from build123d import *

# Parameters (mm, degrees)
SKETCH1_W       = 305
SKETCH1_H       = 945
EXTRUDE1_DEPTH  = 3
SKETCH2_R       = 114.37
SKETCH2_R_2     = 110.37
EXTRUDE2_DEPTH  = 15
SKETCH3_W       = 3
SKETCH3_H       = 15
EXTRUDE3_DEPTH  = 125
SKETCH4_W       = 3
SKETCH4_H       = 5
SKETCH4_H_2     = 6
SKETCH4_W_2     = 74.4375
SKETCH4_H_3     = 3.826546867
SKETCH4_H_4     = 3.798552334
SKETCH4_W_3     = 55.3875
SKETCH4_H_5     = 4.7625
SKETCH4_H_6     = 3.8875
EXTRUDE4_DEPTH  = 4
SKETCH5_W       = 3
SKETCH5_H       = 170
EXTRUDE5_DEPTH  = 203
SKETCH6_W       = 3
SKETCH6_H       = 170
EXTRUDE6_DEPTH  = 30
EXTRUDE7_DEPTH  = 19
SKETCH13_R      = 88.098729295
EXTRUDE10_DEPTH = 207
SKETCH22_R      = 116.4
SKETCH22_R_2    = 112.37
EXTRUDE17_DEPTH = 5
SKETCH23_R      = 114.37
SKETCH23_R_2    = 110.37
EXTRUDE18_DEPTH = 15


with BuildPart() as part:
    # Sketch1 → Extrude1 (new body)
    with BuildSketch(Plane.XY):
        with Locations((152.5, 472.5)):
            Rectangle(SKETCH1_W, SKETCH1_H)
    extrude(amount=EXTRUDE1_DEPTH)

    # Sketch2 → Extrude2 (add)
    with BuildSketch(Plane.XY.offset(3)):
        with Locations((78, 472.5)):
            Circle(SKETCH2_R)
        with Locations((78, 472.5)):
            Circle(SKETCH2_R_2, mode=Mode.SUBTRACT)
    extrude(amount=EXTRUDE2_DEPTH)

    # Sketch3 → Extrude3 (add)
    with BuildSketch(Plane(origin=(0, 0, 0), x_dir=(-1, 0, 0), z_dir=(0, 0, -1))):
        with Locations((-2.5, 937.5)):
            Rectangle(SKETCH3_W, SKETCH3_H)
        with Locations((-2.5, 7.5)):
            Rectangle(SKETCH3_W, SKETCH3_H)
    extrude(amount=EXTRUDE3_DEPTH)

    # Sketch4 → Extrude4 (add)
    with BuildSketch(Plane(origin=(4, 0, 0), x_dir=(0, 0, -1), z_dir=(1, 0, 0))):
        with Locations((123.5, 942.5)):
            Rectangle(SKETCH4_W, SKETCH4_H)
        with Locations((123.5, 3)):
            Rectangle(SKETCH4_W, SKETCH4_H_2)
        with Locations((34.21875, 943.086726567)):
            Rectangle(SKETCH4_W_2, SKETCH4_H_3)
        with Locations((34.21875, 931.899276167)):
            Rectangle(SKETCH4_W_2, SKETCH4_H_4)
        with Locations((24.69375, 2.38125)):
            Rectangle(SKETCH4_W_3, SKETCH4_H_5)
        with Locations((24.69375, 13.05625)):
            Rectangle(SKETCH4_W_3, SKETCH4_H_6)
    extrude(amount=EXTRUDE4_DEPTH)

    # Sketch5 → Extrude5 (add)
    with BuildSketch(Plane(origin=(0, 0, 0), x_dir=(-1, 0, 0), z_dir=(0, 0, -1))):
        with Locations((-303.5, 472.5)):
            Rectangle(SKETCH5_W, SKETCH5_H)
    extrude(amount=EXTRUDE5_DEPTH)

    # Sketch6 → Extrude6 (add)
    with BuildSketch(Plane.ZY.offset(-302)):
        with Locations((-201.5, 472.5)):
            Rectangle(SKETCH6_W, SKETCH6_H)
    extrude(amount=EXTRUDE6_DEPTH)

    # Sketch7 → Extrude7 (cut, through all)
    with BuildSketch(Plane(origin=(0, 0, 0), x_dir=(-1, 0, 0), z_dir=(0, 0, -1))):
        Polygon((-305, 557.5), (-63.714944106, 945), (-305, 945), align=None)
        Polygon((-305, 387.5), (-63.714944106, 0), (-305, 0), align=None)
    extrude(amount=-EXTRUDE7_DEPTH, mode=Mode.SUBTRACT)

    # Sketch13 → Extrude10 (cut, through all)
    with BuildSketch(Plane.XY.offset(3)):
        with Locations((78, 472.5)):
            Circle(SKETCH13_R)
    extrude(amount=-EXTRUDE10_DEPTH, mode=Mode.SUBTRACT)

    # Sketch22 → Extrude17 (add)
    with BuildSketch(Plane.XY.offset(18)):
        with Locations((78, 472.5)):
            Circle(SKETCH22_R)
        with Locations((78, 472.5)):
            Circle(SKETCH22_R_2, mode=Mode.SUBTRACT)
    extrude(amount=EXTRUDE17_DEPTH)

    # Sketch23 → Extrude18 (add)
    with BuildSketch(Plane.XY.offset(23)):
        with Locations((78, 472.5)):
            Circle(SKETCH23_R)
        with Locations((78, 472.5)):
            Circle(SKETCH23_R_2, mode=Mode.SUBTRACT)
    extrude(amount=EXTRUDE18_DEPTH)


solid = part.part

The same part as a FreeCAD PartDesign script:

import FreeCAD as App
import Part
import Sketcher

doc = App.newDocument("Part")
body = doc.addObject("PartDesign::Body", "Body")

sketch1 = doc.addObject("Sketcher::SketchObject", "Sketch")
body.addObject(sketch1)
sketch1.AttachmentSupport = (doc.XY_Plane, [""])
sketch1.MapMode = "FlatFace"
sketch1.addGeometry([
    Part.LineSegment(App.Vector(0, 945, 0), App.Vector(0, 0, 0)),
    Part.LineSegment(App.Vector(0, 0, 0), App.Vector(305, 0, 0)),
    Part.LineSegment(App.Vector(305, 0, 0), App.Vector(305, 945, 0)),
    Part.LineSegment(App.Vector(305, 945, 0), App.Vector(0, 945, 0)),
], False)
sketch1.addConstraint([
    Sketcher.Constraint("Coincident", 0, 2, 1, 1),
    Sketcher.Constraint("Coincident", 1, 2, 2, 1),
    Sketcher.Constraint("Coincident", 2, 2, 3, 1),
    Sketcher.Constraint("Coincident", 3, 2, 0, 1),
    Sketcher.Constraint("Vertical", 0),
    Sketcher.Constraint("Horizontal", 1),
    Sketcher.Constraint("Vertical", 2),
    Sketcher.Constraint("Horizontal", 3),
    Sketcher.Constraint("Coincident", 0, 2, -1, 1),
    Sketcher.Constraint("DistanceX", 1, 1, 1, 2, 305.0),
    Sketcher.Constraint("DistanceY", 0, 2, 0, 1, 945.0),
])
pad1 = doc.addObject("PartDesign::Pad", "Pad")
body.addObject(pad1)
pad1.Profile = sketch1
pad1.Length = 3

sketch2 = doc.addObject("Sketcher::SketchObject", "Sketch001")
body.addObject(sketch2)
sketch2.AttachmentSupport = (doc.XY_Plane, [""])
sketch2.MapMode = "FlatFace"
sketch2.AttachmentOffset = App.Placement(App.Vector(0, 0, 3), App.Rotation())
sketch2.addGeometry([
    Part.Circle(App.Vector(78, 472, 0), App.Vector(0, 0, 1), 114),
    Part.Circle(App.Vector(78, 472, 0), App.Vector(0, 0, 1), 110),
], False)
sketch2.addConstraint([
    Sketcher.Constraint("Coincident", 1, 3, 0, 3),
    Sketcher.Constraint("Diameter", 0, 228.74),
    Sketcher.Constraint("Diameter", 1, 220.74),
    Sketcher.Constraint("DistanceX", -1, 1, 0, 3, 78.0),
    Sketcher.Constraint("DistanceY", -1, 1, 0, 3, 472.5),
])
pad2 = doc.addObject("PartDesign::Pad", "Pad001")
body.addObject(pad2)
pad2.Profile = sketch2
pad2.Length = 15

sketch3 = doc.addObject("Sketcher::SketchObject", "Sketch002")
body.addObject(sketch3)
sketch3.AttachmentSupport = (doc.XY_Plane, [""])
sketch3.MapMode = "FlatFace"
sketch3.addGeometry([
    Part.LineSegment(App.Vector(4, 945, 0), App.Vector(4, 930, 0)),
    Part.LineSegment(App.Vector(4, 930, 0), App.Vector(1, 930, 0)),
    Part.LineSegment(App.Vector(1, 930, 0), App.Vector(1, 945, 0)),
    Part.LineSegment(App.Vector(1, 945, 0), App.Vector(4, 945, 0)),
    Part.LineSegment(App.Vector(4, 15, 0), App.Vector(4, 0, 0)),
    Part.LineSegment(App.Vector(4, 0, 0), App.Vector(1, 0, 0)),
    Part.LineSegment(App.Vector(1, 0, 0), App.Vector(1, 15, 0)),
    Part.LineSegment(App.Vector(1, 15, 0), App.Vector(4, 15, 0)),
], False)
sketch3.addConstraint([
    Sketcher.Constraint("Coincident", 0, 2, 1, 1),
    Sketcher.Constraint("Coincident", 1, 2, 2, 1),
    Sketcher.Constraint("Coincident", 2, 2, 3, 1),
    Sketcher.Constraint("Coincident", 3, 2, 0, 1),
    Sketcher.Constraint("Coincident", 4, 2, 5, 1),
    Sketcher.Constraint("Coincident", 5, 2, 6, 1),
    Sketcher.Constraint("Coincident", 6, 2, 7, 1),
    Sketcher.Constraint("Coincident", 7, 2, 4, 1),
    Sketcher.Constraint("Vertical", 0),
    Sketcher.Constraint("Horizontal", 1),
    Sketcher.Constraint("Vertical", 2),
    Sketcher.Constraint("Horizontal", 3),
    Sketcher.Constraint("Vertical", 4),
    Sketcher.Constraint("Horizontal", 5),
    Sketcher.Constraint("Vertical", 6),
    Sketcher.Constraint("Horizontal", 7),
    Sketcher.Constraint("PointOnObject", 4, 2, -1),
    Sketcher.Constraint("Vertical", 3, 2, 4, 2),
    Sketcher.Constraint("Vertical", 2, 2, 5, 2),
    Sketcher.Constraint("Equal", 2, 4),
    Sketcher.Constraint("DistanceX", 1, 2, 1, 1, 3.0),
    Sketcher.Constraint("DistanceY", 0, 2, 0, 1, 15.0),
    Sketcher.Constraint("DistanceX", -1, 1, 0, 2, 4.0),
    Sketcher.Constraint("DistanceY", -1, 1, 0, 2, 930.0),
])
pad3 = doc.addObject("PartDesign::Pad", "Pad002")
body.addObject(pad3)
pad3.Profile = sketch3
pad3.Length = 125
pad3.Reversed = True

sketch4 = doc.addObject("Sketcher::SketchObject", "Sketch003")
body.addObject(sketch4)
sketch4.AttachmentSupport = (doc.YZ_Plane, [""])
sketch4.MapMode = "FlatFace"
sketch4.AttachmentOffset = App.Placement(App.Vector(0, 0, 4), App.Rotation())
sketch4.addGeometry([
    Part.LineSegment(App.Vector(945, -122, 0), App.Vector(940, -122, 0)),
    Part.LineSegment(App.Vector(940, -122, 0), App.Vector(940, -125, 0)),
    Part.LineSegment(App.Vector(940, -125, 0), App.Vector(945, -125, 0)),
    Part.LineSegment(App.Vector(945, -125, 0), App.Vector(945, -122, 0)),
    Part.LineSegment(App.Vector(6, -122, 0), App.Vector(0, -122, 0)),
    Part.LineSegment(App.Vector(0, -122, 0), App.Vector(0, -125, 0)),
    Part.LineSegment(App.Vector(0, -125, 0), App.Vector(6, -125, 0)),
    Part.LineSegment(App.Vector(6, -125, 0), App.Vector(6, -122, 0)),
    Part.LineSegment(App.Vector(945, 3, 0), App.Vector(941.2, 3, 0)),
    Part.LineSegment(App.Vector(941.2, 3, 0), App.Vector(941.2, -71.4, 0)),
    Part.LineSegment(App.Vector(941.2, -71.4, 0), App.Vector(945, -71.4, 0)),
    Part.LineSegment(App.Vector(945, -71.4, 0), App.Vector(945, 3, 0)),
    Part.LineSegment(App.Vector(933.8, 3, 0), App.Vector(930, 3, 0)),
    Part.LineSegment(App.Vector(930, 3, 0), App.Vector(930, -71.4, 0)),
    Part.LineSegment(App.Vector(930, -71.4, 0), App.Vector(933.8, -71.4, 0)),
    Part.LineSegment(App.Vector(933.8, -71.4, 0), App.Vector(933.8, 3, 0)),
    Part.LineSegment(App.Vector(4.8, 3, 0), App.Vector(0, 3, 0)),
    Part.LineSegment(App.Vector(0, 3, 0), App.Vector(0, -52.4, 0)),
    Part.LineSegment(App.Vector(0, -52.4, 0), App.Vector(4.8, -52.4, 0)),
    Part.LineSegment(App.Vector(4.8, -52.4, 0), App.Vector(4.8, 3, 0)),
    Part.LineSegment(App.Vector(15, 3, 0), App.Vector(11.1, 3, 0)),
    Part.LineSegment(App.Vector(11.1, 3, 0), App.Vector(11.1, -52.4, 0)),
    Part.LineSegment(App.Vector(11.1, -52.4, 0), App.Vector(15, -52.4, 0)),
    Part.LineSegment(App.Vector(15, -52.4, 0), App.Vector(15, 3, 0)),
], False)
sketch4.addConstraint([
    Sketcher.Constraint("Coincident", 0, 2, 1, 1),
    Sketcher.Constraint("Coincident", 1, 2, 2, 1),
    Sketcher.Constraint("Coincident", 2, 2, 3, 1),
    Sketcher.Constraint("Coincident", 3, 2, 0, 1),
    Sketcher.Constraint("Coincident", 4, 2, 5, 1),
    Sketcher.Constraint("Coincident", 5, 2, 6, 1),
    Sketcher.Constraint("Coincident", 6, 2, 7, 1),
    Sketcher.Constraint("Coincident", 7, 2, 4, 1),
    Sketcher.Constraint("Coincident", 8, 2, 9, 1),
    Sketcher.Constraint("Coincident", 9, 2, 10, 1),
    Sketcher.Constraint("Coincident", 10, 2, 11, 1),
    Sketcher.Constraint("Coincident", 11, 2, 8, 1),
    Sketcher.Constraint("Coincident", 12, 2, 13, 1),
    Sketcher.Constraint("Coincident", 13, 2, 14, 1),
    Sketcher.Constraint("Coincident", 14, 2, 15, 1),
    Sketcher.Constraint("Coincident", 15, 2, 12, 1),
    Sketcher.Constraint("Coincident", 16, 2, 17, 1),
    Sketcher.Constraint("Coincident", 17, 2, 18, 1),
    Sketcher.Constraint("Coincident", 18, 2, 19, 1),
    Sketcher.Constraint("Coincident", 19, 2, 16, 1),
    Sketcher.Constraint("Coincident", 20, 2, 21, 1),
    Sketcher.Constraint("Coincident", 21, 2, 22, 1),
    Sketcher.Constraint("Coincident", 22, 2, 23, 1),
    Sketcher.Constraint("Coincident", 23, 2, 20, 1),
    Sketcher.Constraint("Horizontal", 0),
    Sketcher.Constraint("Vertical", 1),
    Sketcher.Constraint("Horizontal", 2),
    Sketcher.Constraint("Vertical", 3),
    Sketcher.Constraint("Horizontal", 4),
    Sketcher.Constraint("Vertical", 5),
    Sketcher.Constraint("Horizontal", 6),
    Sketcher.Constraint("Vertical", 7),
    Sketcher.Constraint("Horizontal", 8),
    Sketcher.Constraint("Vertical", 9),
    Sketcher.Constraint("Horizontal", 10),
    Sketcher.Constraint("Vertical", 11),
    Sketcher.Constraint("Horizontal", 12),
    Sketcher.Constraint("Vertical", 13),
    Sketcher.Constraint("Horizontal", 14),
    Sketcher.Constraint("Vertical", 15),
    Sketcher.Constraint("Horizontal", 16),
    Sketcher.Constraint("Vertical", 17),
    Sketcher.Constraint("Horizontal", 18),
    Sketcher.Constraint("Vertical", 19),
    Sketcher.Constraint("Horizontal", 20),
    Sketcher.Constraint("Vertical", 21),
    Sketcher.Constraint("Horizontal", 22),
    Sketcher.Constraint("Vertical", 23),
    Sketcher.Constraint("PointOnObject", 4, 2, -2),
    Sketcher.Constraint("PointOnObject", 16, 2, -2),
    Sketcher.Constraint("Horizontal", 3, 2, 4, 2),
    Sketcher.Constraint("Horizontal", 2, 2, 5, 2),
    Sketcher.Constraint("Horizontal", 11, 2, 12, 2),
    Sketcher.Constraint("Horizontal", 10, 2, 13, 2),
    Sketcher.Constraint("Horizontal", 15, 2, 16, 2),
    Sketcher.Constraint("Horizontal", 19, 2, 20, 2),
    Sketcher.Constraint("Horizontal", 18, 2, 21, 2),
    Sketcher.Constraint("Vertical", 3, 2, 10, 2),
    Sketcher.Constraint("DistanceX", 0, 2, 0, 1, 5.0),
    Sketcher.Constraint("DistanceX", 4, 2, 4, 1, 6.0),
    Sketcher.Constraint("DistanceY", 1, 2, 1, 1, 3.0),
    Sketcher.Constraint("DistanceX", -1, 1, 0, 2, 940.0),
    Sketcher.Constraint("DistanceY", 0, 2, -1, 1, 122.0),
    Sketcher.Constraint("DistanceY", -1, 1, 8, 2, 3.0),
    Sketcher.Constraint("DistanceX", -1, 1, 12, 2, 930.0),
    Sketcher.Constraint("DistanceX", -1, 1, 22, 2, 15.0),
    Sketcher.Constraint("DistanceX", 19, 2, 20, 2, 6.35),
    Sketcher.Constraint("DistanceX", 16, 2, 16, 1, 4.7625),
    Sketcher.Constraint("DistanceY", 9, 2, 9, 1, 74.4375),
    Sketcher.Constraint("DistanceY", 17, 2, 17, 1, 55.3875),
    Sketcher.Constraint("DistanceX", 14, 2, 9, 2, 7.374901),
    Sketcher.Constraint("DistanceX", 8, 2, 8, 1, 3.826547),
])
pad4 = doc.addObject("PartDesign::Pad", "Pad003")
body.addObject(pad4)
pad4.Profile = sketch4
pad4.Length = 4

sketch5 = doc.addObject("Sketcher::SketchObject", "Sketch004")
body.addObject(sketch5)
sketch5.AttachmentSupport = (doc.XY_Plane, [""])
sketch5.MapMode = "FlatFace"
sketch5.addGeometry([
    Part.LineSegment(App.Vector(305, 557.5, 0), App.Vector(305, 387.5, 0)),
    Part.LineSegment(App.Vector(305, 387.5, 0), App.Vector(302, 387.5, 0)),
    Part.LineSegment(App.Vector(302, 387.5, 0), App.Vector(302, 557.5, 0)),
    Part.LineSegment(App.Vector(302, 557.5, 0), App.Vector(305, 557.5, 0)),
], False)
sketch5.addConstraint([
    Sketcher.Constraint("Coincident", 0, 2, 1, 1),
    Sketcher.Constraint("Coincident", 1, 2, 2, 1),
    Sketcher.Constraint("Coincident", 2, 2, 3, 1),
    Sketcher.Constraint("Coincident", 3, 2, 0, 1),
    Sketcher.Constraint("Vertical", 0),
    Sketcher.Constraint("Horizontal", 1),
    Sketcher.Constraint("Vertical", 2),
    Sketcher.Constraint("Horizontal", 3),
    Sketcher.Constraint("DistanceX", 1, 2, 1, 1, 3.0),
    Sketcher.Constraint("DistanceY", 0, 2, 0, 1, 170.0),
    Sketcher.Constraint("DistanceX", -1, 1, 0, 2, 305.0),
    Sketcher.Constraint("DistanceY", -1, 1, 0, 2, 387.5),
])
pad5 = doc.addObject("PartDesign::Pad", "Pad004")
body.addObject(pad5)
pad5.Profile = sketch5
pad5.Length = 203
pad5.Reversed = True

sketch6 = doc.addObject("Sketcher::SketchObject", "Sketch005")
body.addObject(sketch6)
sketch6.AttachmentSupport = (doc.YZ_Plane, [""])
sketch6.MapMode = "FlatFace"
sketch6.AttachmentOffset = App.Placement(App.Vector(0, 0, 302), App.Rotation())
sketch6.addGeometry([
    Part.LineSegment(App.Vector(557.5, -203, 0), App.Vector(387.5, -203, 0)),
    Part.LineSegment(App.Vector(387.5, -203, 0), App.Vector(387.5, -200, 0)),
    Part.LineSegment(App.Vector(387.5, -200, 0), App.Vector(557.5, -200, 0)),
    Part.LineSegment(App.Vector(557.5, -200, 0), App.Vector(557.5, -203, 0)),
], False)
sketch6.addConstraint([
    Sketcher.Constraint("Coincident", 0, 2, 1, 1),
    Sketcher.Constraint("Coincident", 1, 2, 2, 1),
    Sketcher.Constraint("Coincident", 2, 2, 3, 1),
    Sketcher.Constraint("Coincident", 3, 2, 0, 1),
    Sketcher.Constraint("Horizontal", 0),
    Sketcher.Constraint("Vertical", 1),
    Sketcher.Constraint("Horizontal", 2),
    Sketcher.Constraint("Vertical", 3),
    Sketcher.Constraint("DistanceX", 0, 2, 0, 1, 170.0),
    Sketcher.Constraint("DistanceY", 1, 1, 1, 2, 3.0),
    Sketcher.Constraint("DistanceY", 0, 2, -1, 1, 203.0),
    Sketcher.Constraint("DistanceX", -1, 1, 0, 2, 387.5),
])
pad6 = doc.addObject("PartDesign::Pad", "Pad005")
body.addObject(pad6)
pad6.Profile = sketch6
pad6.Length = 30
pad6.Reversed = True

sketch7 = doc.addObject("Sketcher::SketchObject", "Sketch006")
body.addObject(sketch7)
sketch7.AttachmentSupport = (doc.XY_Plane, [""])
sketch7.MapMode = "FlatFace"
sketch7.addGeometry([
    Part.LineSegment(App.Vector(305, 558, 0), App.Vector(64, 945, 0)),
    Part.LineSegment(App.Vector(64, 945, 0), App.Vector(305, 945, 0)),
    Part.LineSegment(App.Vector(305, 945, 0), App.Vector(305, 558, 0)),
    Part.LineSegment(App.Vector(64, 0, 0), App.Vector(305, 388, 0)),
    Part.LineSegment(App.Vector(305, 388, 0), App.Vector(305, 0, 0)),
    Part.LineSegment(App.Vector(305, 0, 0), App.Vector(64, 0, 0)),
], False)
sketch7.addConstraint([
    Sketcher.Constraint("Coincident", 0, 2, 1, 1),
    Sketcher.Constraint("Coincident", 1, 2, 2, 1),
    Sketcher.Constraint("Coincident", 2, 2, 0, 1),
    Sketcher.Constraint("Coincident", 3, 2, 4, 1),
    Sketcher.Constraint("Coincident", 4, 2, 5, 1),
    Sketcher.Constraint("Coincident", 5, 2, 3, 1),
    Sketcher.Constraint("Horizontal", 1),
    Sketcher.Constraint("Vertical", 2),
    Sketcher.Constraint("Vertical", 4),
    Sketcher.Constraint("Horizontal", 5),
    Sketcher.Constraint("PointOnObject", 4, 2, -1),
    Sketcher.Constraint("Vertical", 2, 2, 3, 2),
    Sketcher.Constraint("Vertical", 0, 2, 5, 2),
    Sketcher.Constraint("Equal", 2, 4),
    Sketcher.Constraint("DistanceY", 2, 2, 2, 1, 387.5),
    Sketcher.Constraint("DistanceY", -1, 1, 0, 2, 945.0),
    Sketcher.Constraint("DistanceX", -1, 1, 1, 2, 305.0),
    Sketcher.Constraint("Distance", 0, 456.480808),
])
pocket1 = doc.addObject("PartDesign::Pocket", "Pocket")
body.addObject(pocket1)
pocket1.Profile = sketch7
pocket1.Type = "ThroughAll"
pocket1.Reversed = True

sketch8 = doc.addObject("Sketcher::SketchObject", "Sketch007")
body.addObject(sketch8)
sketch8.AttachmentSupport = (doc.XY_Plane, [""])
sketch8.MapMode = "FlatFace"
sketch8.AttachmentOffset = App.Placement(App.Vector(0, 0, 3), App.Rotation())
sketch8.addGeometry(Part.Circle(App.Vector(78, 472, 0), App.Vector(0, 0, 1), 88), False)
sketch8.addConstraint([
    Sketcher.Constraint("DistanceX", -1, 1, 0, 3, 78.0),
    Sketcher.Constraint("DistanceY", -1, 1, 0, 3, 472.5),
    Sketcher.Constraint("Diameter", 0, 176.197459),
])
pocket2 = doc.addObject("PartDesign::Pocket", "Pocket001")
body.addObject(pocket2)
pocket2.Profile = sketch8
pocket2.Type = "ThroughAll"

sketch9 = doc.addObject("Sketcher::SketchObject", "Sketch008")
body.addObject(sketch9)
sketch9.AttachmentSupport = (doc.XY_Plane, [""])
sketch9.MapMode = "FlatFace"
sketch9.AttachmentOffset = App.Placement(App.Vector(0, 0, 18), App.Rotation())
sketch9.addGeometry([
    Part.Circle(App.Vector(78, 472, 0), App.Vector(0, 0, 1), 116),
    Part.Circle(App.Vector(78, 472, 0), App.Vector(0, 0, 1), 112),
], False)
sketch9.addConstraint([
    Sketcher.Constraint("Coincident", 1, 3, 0, 3),
    Sketcher.Constraint("Diameter", 0, 232.8),
    Sketcher.Constraint("Diameter", 1, 224.74),
    Sketcher.Constraint("DistanceX", -1, 1, 0, 3, 78.0),
    Sketcher.Constraint("DistanceY", -1, 1, 0, 3, 472.5),
])
pad7 = doc.addObject("PartDesign::Pad", "Pad006")
body.addObject(pad7)
pad7.Profile = sketch9
pad7.Length = 5

sketch10 = doc.addObject("Sketcher::SketchObject", "Sketch009")
body.addObject(sketch10)
sketch10.AttachmentSupport = (doc.XY_Plane, [""])
sketch10.MapMode = "FlatFace"
sketch10.AttachmentOffset = App.Placement(App.Vector(0, 0, 23), App.Rotation())
sketch10.addGeometry([
    Part.Circle(App.Vector(78, 472, 0), App.Vector(0, 0, 1), 114),
    Part.Circle(App.Vector(78, 472, 0), App.Vector(0, 0, 1), 110),
], False)
sketch10.addConstraint([
    Sketcher.Constraint("Coincident", 1, 3, 0, 3),
    Sketcher.Constraint("Diameter", 0, 228.74),
    Sketcher.Constraint("Diameter", 1, 220.74),
    Sketcher.Constraint("DistanceX", -1, 1, 0, 3, 78.0),
    Sketcher.Constraint("DistanceY", -1, 1, 0, 3, 472.5),
])
pad8 = doc.addObject("PartDesign::Pad", "Pad007")
body.addObject(pad8)
pad8.Profile = sketch10
pad8.Length = 15

doc.recompute()
